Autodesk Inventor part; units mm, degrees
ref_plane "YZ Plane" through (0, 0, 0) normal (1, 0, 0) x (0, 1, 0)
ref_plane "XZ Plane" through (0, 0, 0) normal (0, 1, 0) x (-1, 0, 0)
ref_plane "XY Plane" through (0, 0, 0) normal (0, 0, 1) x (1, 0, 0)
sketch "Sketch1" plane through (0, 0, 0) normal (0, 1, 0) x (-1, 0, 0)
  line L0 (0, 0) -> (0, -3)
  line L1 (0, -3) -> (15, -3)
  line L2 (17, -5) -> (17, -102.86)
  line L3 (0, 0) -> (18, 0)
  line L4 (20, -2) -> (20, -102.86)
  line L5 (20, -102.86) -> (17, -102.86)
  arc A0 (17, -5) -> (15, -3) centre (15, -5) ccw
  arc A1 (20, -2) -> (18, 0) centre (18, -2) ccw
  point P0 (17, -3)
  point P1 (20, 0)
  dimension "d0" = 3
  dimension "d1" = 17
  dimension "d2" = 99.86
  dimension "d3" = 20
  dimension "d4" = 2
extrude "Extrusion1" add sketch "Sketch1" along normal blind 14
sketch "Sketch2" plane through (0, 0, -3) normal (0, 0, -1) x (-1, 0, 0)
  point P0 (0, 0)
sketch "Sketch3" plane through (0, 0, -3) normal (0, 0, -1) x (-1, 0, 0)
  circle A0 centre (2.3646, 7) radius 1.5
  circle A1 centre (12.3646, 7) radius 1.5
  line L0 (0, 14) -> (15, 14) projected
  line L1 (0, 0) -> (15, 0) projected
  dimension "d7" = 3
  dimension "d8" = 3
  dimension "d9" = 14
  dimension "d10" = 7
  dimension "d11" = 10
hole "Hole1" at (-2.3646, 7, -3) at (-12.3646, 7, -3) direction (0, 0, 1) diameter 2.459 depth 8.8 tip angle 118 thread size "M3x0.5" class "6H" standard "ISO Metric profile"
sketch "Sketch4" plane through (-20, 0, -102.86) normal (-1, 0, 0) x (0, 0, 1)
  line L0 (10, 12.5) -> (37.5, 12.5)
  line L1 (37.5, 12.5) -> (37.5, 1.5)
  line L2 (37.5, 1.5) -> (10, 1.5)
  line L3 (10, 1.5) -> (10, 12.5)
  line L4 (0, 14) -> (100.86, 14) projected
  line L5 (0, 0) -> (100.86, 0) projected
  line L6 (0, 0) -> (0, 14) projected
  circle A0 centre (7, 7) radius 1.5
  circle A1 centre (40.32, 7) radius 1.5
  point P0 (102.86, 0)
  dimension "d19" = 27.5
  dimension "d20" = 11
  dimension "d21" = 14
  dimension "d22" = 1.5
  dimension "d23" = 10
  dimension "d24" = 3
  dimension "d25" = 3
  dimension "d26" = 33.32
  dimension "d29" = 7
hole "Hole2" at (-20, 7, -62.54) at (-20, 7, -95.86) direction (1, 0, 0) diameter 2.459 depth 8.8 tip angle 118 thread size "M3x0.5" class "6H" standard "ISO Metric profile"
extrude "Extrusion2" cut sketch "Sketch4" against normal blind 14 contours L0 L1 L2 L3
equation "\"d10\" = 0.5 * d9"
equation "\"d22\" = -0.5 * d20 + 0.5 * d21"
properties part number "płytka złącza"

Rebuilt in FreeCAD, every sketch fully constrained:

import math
import FreeCAD as App
import Part
import Sketcher
from FreeCAD import Vector
Q = App.Units.Quantity

doc = App.newDocument("Part")
body = doc.addObject("PartDesign::Body", "Body")

# Sketch on XZ plane
sketch1 = body.newObject("Sketcher::SketchObject", "Sketch")
sketch1.AttachmentSupport = (doc.getObject("XZ_Plane"), [""])
sketch1.MapMode = "FlatFace"
sketch1.addGeometry(Part.LineSegment(Vector(-18, 0, 0), Vector(0, 0, 0)), False)
sketch1.addGeometry(Part.LineSegment(Vector(0, 0, 0), Vector(0, -3, 0)), False)
sketch1.addGeometry(Part.LineSegment(Vector(0, -3, 0), Vector(-15, -3, 0)), False)
sketch1.addGeometry(Part.ArcOfCircle(Part.Circle(Vector(-15, -5, 0), Vector(0, 0, 1), 2), math.radians(90), math.radians(180)), False)
sketch1.addGeometry(Part.LineSegment(Vector(-17, -5, 0), Vector(-17, -102.9, 0)), False)
sketch1.addGeometry(Part.LineSegment(Vector(-17, -102.9, 0), Vector(-20, -102.9, 0)), False)
sketch1.addGeometry(Part.LineSegment(Vector(-20, -102.9, 0), Vector(-20, -2, 0)), False)
sketch1.addGeometry(Part.ArcOfCircle(Part.Circle(Vector(-18, -2, 0), Vector(0, 0, 1), 2), math.radians(90), math.radians(180)), False)
sketch1.addConstraint(Sketcher.Constraint("Coincident", 0, 2, 1, 1))
sketch1.addConstraint(Sketcher.Constraint("Coincident", 1, 2, 2, 1))
sketch1.addConstraint(Sketcher.Constraint("Tangent", 2, 2, 3, 1))
sketch1.addConstraint(Sketcher.Constraint("Tangent", 3, 2, 4, 1))
sketch1.addConstraint(Sketcher.Constraint("Coincident", 4, 2, 5, 1))
sketch1.addConstraint(Sketcher.Constraint("Coincident", 5, 2, 6, 1))
sketch1.addConstraint(Sketcher.Constraint("Tangent", 6, 2, 7, 2))
sketch1.addConstraint(Sketcher.Constraint("Tangent", 7, 1, 0, 1))
sketch1.addConstraint(Sketcher.Constraint("Horizontal", 0))
sketch1.addConstraint(Sketcher.Constraint("Vertical", 1))
sketch1.addConstraint(Sketcher.Constraint("Horizontal", 2))
sketch1.addConstraint(Sketcher.Constraint("Vertical", 4))
sketch1.addConstraint(Sketcher.Constraint("Horizontal", 5))
sketch1.addConstraint(Sketcher.Constraint("Vertical", 6))
sketch1.addConstraint(Sketcher.Constraint("Coincident", 0, 2, -1, 1))
sketch1.addConstraint(Sketcher.Constraint("Equal", 3, 7))
sketch1.addConstraint(Sketcher.Constraint("Equal", 5, 1))
sketch1.addConstraint(Sketcher.Constraint("Radius", 3, Q("2 mm")))
sketch1.addConstraint(Sketcher.Constraint("DistanceX", 5, 2, 5, 1, Q("3 mm")))
sketch1.addConstraint(Sketcher.Constraint("DistanceX", 3, 2, -1, 1, Q("17 mm")))
sketch1.addConstraint(Sketcher.Constraint("DistanceY", 4, 2, 2, 2, Q("99.86 mm")))
pad1 = body.newObject("PartDesign::Pad", "Pad")
pad1.Profile = sketch1
pad1.Length = 14
pad1.Reversed = True

# Sketch on XY plane
sketch2 = body.newObject("Sketcher::SketchObject", "Sketch001")
sketch2.AttachmentSupport = (doc.getObject("XY_Plane"), [""])
sketch2.MapMode = "FlatFace"
sketch2.AttachmentOffset = App.Placement(Vector(0, 0, -3), App.Rotation())
sketch2.addGeometry(Part.Circle(Vector(-2.4, 7, 0), Vector(0, 0, 1), 1.2), False)
sketch2.addGeometry(Part.Circle(Vector(-12.4, 7, 0), Vector(0, 0, 1), 1.2), False)
sketch2.addConstraint(Sketcher.Constraint("Equal", 0, 1))
sketch2.addConstraint(Sketcher.Constraint("Horizontal", 0, 3, 1, 3))
sketch2.addConstraint(Sketcher.Constraint("Diameter", 0, Q("2.459 mm")))
sketch2.addConstraint(Sketcher.Constraint("DistanceY", -1, 1, 0, 3, Q("7 mm")))
sketch2.addConstraint(Sketcher.Constraint("DistanceX", 1, 3, 0, 3, Q("10 mm")))
sketch2.addConstraint(Sketcher.Constraint("DistanceX", 0, 3, -1, 1, Q("2.3646 mm")))
doc.recompute()
hole = body.newObject("PartDesign::Hole", "Hole")
hole.Profile = sketch2
hole.ThreadType = "None"
hole.Diameter = 2.459
hole.DepthType = "Dimension"
hole.Depth = 8.8
hole.DrillPoint = "Angled"
hole.DrillPointAngle = 118
hole.Reversed = True

# Sketch on YZ plane
sketch3 = body.newObject("Sketcher::SketchObject", "Sketch002")
sketch3.AttachmentSupport = (doc.getObject("YZ_Plane"), [""])
sketch3.MapMode = "FlatFace"
sketch3.AttachmentOffset = App.Placement(Vector(0, 0, -20), App.Rotation())
sketch3.addGeometry(Part.Circle(Vector(7, -62.5, 0), Vector(0, 0, 1), 1.2), False)
sketch3.addGeometry(Part.Circle(Vector(7, -95.9, 0), Vector(0, 0, 1), 1.2), False)
sketch3.addConstraint(Sketcher.Constraint("Equal", 0, 1))
sketch3.addConstraint(Sketcher.Constraint("Vertical", 0, 3, 1, 3))
sketch3.addConstraint(Sketcher.Constraint("Diameter", 0, Q("2.459 mm")))
sketch3.addConstraint(Sketcher.Constraint("DistanceX", -1, 1, 0, 3, Q("7 mm")))
sketch3.addConstraint(Sketcher.Constraint("DistanceY", 0, 3, -1, 1, Q("62.54 mm")))
sketch3.addConstraint(Sketcher.Constraint("DistanceY", 1, 3, -1, 1, Q("95.86 mm")))
doc.recompute()
hole2 = body.newObject("PartDesign::Hole", "Hole001")
hole2.Profile = sketch3
hole2.ThreadType = "None"
hole2.Diameter = 2.459
hole2.DepthType = "Dimension"
hole2.Depth = 8.8
hole2.DrillPoint = "Angled"
hole2.DrillPointAngle = 118
hole2.Reversed = True

# Sketch on YZ plane
sketch4 = body.newObject("Sketcher::SketchObject", "Sketch003")
sketch4.AttachmentSupport = (doc.getObject("YZ_Plane"), [""])
sketch4.MapMode = "FlatFace"
sketch4.AttachmentOffset = App.Placement(Vector(0, 0, -20), App.Rotation())
sketch4.addGeometry(Part.LineSegment(Vector(12, -65, 0), Vector(12, -93, 0)), False)
sketch4.addGeometry(Part.LineSegment(Vector(12, -93, 0), Vector(2, -93, 0)), False)
sketch4.addGeometry(Part.LineSegment(Vector(2, -93, 0), Vector(2, -65, 0)), False)
sketch4.addGeometry(Part.LineSegment(Vector(2, -65, 0), Vector(12, -65, 0)), False)
sketch4.addConstraint(Sketcher.Constraint("Coincident", 0, 2, 1, 1))
sketch4.addConstraint(Sketcher.Constraint("Coincident", 1, 2, 2, 1))
sketch4.addConstraint(Sketcher.Constraint("Coincident", 2, 2, 3, 1))
sketch4.addConstraint(Sketcher.Constraint("Coincident", 3, 2, 0, 1))
sketch4.addConstraint(Sketcher.Constraint("Vertical", 0))
sketch4.addConstraint(Sketcher.Constraint("Horizontal", 1))
sketch4.addConstraint(Sketcher.Constraint("Vertical", 2))
sketch4.addConstraint(Sketcher.Constraint("Horizontal", 3))
sketch4.addConstraint(Sketcher.Constraint("DistanceX", 1, 2, 1, 1, Q("11 mm")))
sketch4.addConstraint(Sketcher.Constraint("DistanceY", 0, 2, 0, 1, Q("27.5 mm")))
sketch4.addConstraint(Sketcher.Constraint("DistanceX", -1, 1, 1, 2, Q("1.5 mm")))
sketch4.addConstraint(Sketcher.Constraint("DistanceY", 0, 2, -1, 1, Q("92.86 mm")))
pocket1 = body.newObject("PartDesign::Pocket", "Pocket")
pocket1.Profile = sketch4
pocket1.Length = 14
pocket1.Reversed = True

doc.recompute()
